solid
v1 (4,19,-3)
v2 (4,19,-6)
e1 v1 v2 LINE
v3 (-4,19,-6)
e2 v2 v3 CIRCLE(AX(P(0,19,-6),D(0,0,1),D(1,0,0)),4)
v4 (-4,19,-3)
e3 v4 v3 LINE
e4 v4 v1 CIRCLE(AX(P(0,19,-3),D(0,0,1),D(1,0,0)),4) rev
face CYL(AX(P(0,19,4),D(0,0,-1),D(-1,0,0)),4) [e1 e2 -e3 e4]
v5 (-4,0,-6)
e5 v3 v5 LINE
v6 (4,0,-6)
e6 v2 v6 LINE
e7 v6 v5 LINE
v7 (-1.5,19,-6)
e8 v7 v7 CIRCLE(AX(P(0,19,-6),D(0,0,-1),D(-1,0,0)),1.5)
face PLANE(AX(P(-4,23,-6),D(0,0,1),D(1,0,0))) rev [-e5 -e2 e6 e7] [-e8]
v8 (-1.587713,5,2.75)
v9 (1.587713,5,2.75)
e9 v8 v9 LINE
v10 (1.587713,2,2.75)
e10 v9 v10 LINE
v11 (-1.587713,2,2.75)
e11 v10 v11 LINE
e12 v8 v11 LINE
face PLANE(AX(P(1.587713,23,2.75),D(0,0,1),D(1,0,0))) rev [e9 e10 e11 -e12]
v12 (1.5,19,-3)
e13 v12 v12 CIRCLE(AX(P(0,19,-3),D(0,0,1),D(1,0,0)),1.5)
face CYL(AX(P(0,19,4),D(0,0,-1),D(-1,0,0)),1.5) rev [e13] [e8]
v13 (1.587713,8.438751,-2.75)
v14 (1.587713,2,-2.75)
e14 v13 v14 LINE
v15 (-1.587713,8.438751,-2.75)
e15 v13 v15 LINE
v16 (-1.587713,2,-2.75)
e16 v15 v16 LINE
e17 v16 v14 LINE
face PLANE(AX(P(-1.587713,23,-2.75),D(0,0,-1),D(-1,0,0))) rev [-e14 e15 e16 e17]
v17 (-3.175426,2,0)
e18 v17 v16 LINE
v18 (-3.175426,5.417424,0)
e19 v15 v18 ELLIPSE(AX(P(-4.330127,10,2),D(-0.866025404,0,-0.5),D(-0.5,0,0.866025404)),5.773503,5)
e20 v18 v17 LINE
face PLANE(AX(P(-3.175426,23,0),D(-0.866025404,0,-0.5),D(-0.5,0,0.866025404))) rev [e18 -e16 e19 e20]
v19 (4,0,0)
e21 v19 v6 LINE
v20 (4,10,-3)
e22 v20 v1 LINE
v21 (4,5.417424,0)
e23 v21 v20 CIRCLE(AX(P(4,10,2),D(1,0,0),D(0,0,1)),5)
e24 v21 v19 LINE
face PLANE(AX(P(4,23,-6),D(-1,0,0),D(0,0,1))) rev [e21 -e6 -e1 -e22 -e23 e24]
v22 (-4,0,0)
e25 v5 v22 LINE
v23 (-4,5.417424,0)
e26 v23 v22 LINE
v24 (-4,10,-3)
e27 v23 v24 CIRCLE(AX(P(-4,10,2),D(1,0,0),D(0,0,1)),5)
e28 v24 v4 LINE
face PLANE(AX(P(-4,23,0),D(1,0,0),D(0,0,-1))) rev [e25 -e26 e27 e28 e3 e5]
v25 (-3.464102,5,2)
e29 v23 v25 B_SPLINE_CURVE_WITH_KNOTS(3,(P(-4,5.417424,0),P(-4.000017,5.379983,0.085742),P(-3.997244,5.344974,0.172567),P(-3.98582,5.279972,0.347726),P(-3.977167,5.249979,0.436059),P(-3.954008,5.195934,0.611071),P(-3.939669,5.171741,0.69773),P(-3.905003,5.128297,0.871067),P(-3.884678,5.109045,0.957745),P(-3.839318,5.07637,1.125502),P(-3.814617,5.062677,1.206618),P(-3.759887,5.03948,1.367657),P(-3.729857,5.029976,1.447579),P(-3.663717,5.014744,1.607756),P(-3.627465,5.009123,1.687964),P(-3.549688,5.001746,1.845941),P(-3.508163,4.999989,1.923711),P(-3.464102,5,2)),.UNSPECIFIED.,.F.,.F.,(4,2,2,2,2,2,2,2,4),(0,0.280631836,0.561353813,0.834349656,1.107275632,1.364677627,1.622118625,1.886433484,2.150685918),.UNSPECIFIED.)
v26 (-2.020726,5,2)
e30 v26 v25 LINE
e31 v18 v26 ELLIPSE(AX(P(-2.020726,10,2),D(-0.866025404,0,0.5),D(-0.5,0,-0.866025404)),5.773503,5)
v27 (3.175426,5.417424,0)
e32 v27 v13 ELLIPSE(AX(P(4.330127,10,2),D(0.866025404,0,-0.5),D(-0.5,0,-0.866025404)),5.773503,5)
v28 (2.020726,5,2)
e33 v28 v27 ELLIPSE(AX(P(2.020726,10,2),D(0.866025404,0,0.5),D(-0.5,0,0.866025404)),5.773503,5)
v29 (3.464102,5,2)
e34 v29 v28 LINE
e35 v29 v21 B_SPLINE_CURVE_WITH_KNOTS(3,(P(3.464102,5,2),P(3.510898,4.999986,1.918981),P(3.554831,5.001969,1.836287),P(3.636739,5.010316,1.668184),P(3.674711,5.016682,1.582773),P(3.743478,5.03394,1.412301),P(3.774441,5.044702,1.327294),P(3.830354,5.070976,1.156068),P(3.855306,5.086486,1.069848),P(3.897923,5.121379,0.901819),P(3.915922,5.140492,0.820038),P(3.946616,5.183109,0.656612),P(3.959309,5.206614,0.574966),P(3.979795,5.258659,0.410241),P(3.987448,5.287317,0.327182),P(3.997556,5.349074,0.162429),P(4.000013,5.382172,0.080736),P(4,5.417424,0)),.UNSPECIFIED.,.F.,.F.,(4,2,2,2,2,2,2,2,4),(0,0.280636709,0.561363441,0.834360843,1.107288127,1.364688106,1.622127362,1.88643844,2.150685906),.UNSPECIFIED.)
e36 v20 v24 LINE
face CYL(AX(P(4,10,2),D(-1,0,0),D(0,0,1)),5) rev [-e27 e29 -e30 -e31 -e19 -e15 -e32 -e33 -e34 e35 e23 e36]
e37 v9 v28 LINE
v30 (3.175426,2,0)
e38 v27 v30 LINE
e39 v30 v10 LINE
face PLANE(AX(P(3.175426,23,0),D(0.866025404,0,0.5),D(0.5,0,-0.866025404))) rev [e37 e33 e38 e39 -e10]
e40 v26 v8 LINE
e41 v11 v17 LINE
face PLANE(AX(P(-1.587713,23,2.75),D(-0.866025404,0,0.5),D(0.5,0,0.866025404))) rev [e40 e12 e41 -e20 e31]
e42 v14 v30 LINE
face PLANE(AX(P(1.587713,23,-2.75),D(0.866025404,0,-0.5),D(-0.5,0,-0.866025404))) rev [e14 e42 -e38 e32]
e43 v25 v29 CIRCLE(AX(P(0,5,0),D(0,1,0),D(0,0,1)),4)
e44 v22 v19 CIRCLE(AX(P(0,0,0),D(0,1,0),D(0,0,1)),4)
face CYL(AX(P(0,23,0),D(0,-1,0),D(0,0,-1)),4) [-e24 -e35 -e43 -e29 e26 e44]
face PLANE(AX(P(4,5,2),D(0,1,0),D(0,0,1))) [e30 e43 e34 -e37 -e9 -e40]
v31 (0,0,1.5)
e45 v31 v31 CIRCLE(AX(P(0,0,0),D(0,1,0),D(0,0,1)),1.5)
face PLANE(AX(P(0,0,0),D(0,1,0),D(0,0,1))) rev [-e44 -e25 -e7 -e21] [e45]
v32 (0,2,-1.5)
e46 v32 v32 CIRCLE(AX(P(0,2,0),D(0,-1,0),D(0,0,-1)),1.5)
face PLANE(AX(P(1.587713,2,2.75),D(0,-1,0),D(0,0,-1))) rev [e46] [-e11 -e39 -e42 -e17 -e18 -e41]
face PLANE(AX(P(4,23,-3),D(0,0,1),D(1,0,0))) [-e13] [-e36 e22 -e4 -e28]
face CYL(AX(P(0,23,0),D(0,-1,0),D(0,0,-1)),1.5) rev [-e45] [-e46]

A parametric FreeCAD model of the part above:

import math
import FreeCAD as App
import Part
import Sketcher

V = App.Vector
Q = App.Units.Quantity


def add_polygon(sketch, points):
    """Adds a closed chain of lines whose ends are joined by coincident constraints."""
    first, n = sketch.GeometryCount, len(points)
    for a, b in zip(points, points[1:] + points[:1]):
        sketch.addGeometry(Part.LineSegment(App.Vector(*a, 0), App.Vector(*b, 0)), False)
    for i in range(n):
        sketch.addConstraint(Sketcher.Constraint("Coincident", first + i, 2, first + (i + 1) % n, 1))

doc = App.newDocument("Part")
body = doc.addObject("PartDesign::Body", "Body")

sketch1 = body.newObject("Sketcher::SketchObject", "Sketch")
sketch1.AttachmentSupport = (doc.getObject("XZ_Plane"), [""])
sketch1.MapMode = "FlatFace"
sketch1.addGeometry([
    Part.LineSegment(V(-4, -6, 0), V(-4, 0, 0)),
    Part.ArcOfCircle(Part.Circle(V(0, 0, 0), V(0, 0, 1), 4), math.radians(0), math.radians(180)),
    Part.LineSegment(V(4, 0, 0), V(4, -6, 0)),
    Part.LineSegment(V(4, -6, 0), V(-4, -6, 0)),
    Part.Circle(V(0, 0, 0), V(0, 0, 1), 1.5),
], False)
sketch1.addConstraint([
    Sketcher.Constraint("Tangent", 0, 2, 1, 2),
    Sketcher.Constraint("Tangent", 1, 1, 2, 1),
    Sketcher.Constraint("Coincident", 2, 2, 3, 1),
    Sketcher.Constraint("Coincident", 3, 2, 0, 1),
    Sketcher.Constraint("Vertical", 0),
    Sketcher.Constraint("Vertical", 2),
    Sketcher.Constraint("Horizontal", 3),
    Sketcher.Constraint("Coincident", 1, 3, -1, 1),
    Sketcher.Constraint("Coincident", 4, 3, -1, 1),
    Sketcher.Constraint("Diameter", 4, 3.0),
    Sketcher.Constraint("Radius", 1, 4.0),
    Sketcher.Constraint("DistanceY", 0, 1, 0, 2, 6.0),
])
pad1 = body.newObject("PartDesign::Pad", "Pad")
pad1.Profile = sketch1
pad1.Length = 23
pad1.Reversed = True

sketch2 = body.newObject("Sketcher::SketchObject", "Sketch001")
sketch2.AttachmentSupport = (doc.getObject("YZ_Plane"), [""])
sketch2.MapMode = "FlatFace"
sketch2.AttachmentOffset = App.Placement(V(0, 0, -4), App.Rotation())
add_polygon(sketch2, [(26.6, -9.6), (-3.6, -9.6), (-3.6, 7.6), (26.6, 7.6)])
sketch2.addGeometry(Part.LineSegment(V(23, -6, 0), V(23, -3, 0)), False)
sketch2.addGeometry(Part.LineSegment(V(23, -3, 0), V(10, -3, 0)), False)
sketch2.addGeometry(Part.ArcOfCircle(Part.Circle(V(10, 2, 0), V(0, 0, 1), 5), math.radians(180), math.radians(270)), False)
sketch2.addGeometry(Part.LineSegment(V(5, 2, 0), V(5, 4, 0)), False)
sketch2.addGeometry(Part.LineSegment(V(5, 4, 0), V(0, 4, 0)), False)
sketch2.addGeometry(Part.LineSegment(V(0, 4, 0), V(0, -6, 0)), False)
sketch2.addGeometry(Part.LineSegment(V(0, -6, 0), V(23, -6, 0)), False)
sketch2.addConstraint([
    Sketcher.Constraint("Coincident", 4, 2, 5, 1),
    Sketcher.Constraint("Tangent", 5, 2, 6, 2),
    Sketcher.Constraint("Tangent", 6, 1, 7, 1),
    Sketcher.Constraint("Coincident", 7, 2, 8, 1),
    Sketcher.Constraint("Coincident", 8, 2, 9, 1),
    Sketcher.Constraint("Coincident", 9, 2, 10, 1),
    Sketcher.Constraint("Coincident", 10, 2, 4, 1),
    Sketcher.Constraint("Horizontal", 0),
    Sketcher.Constraint("Vertical", 1),
    Sketcher.Constraint("Horizontal", 2),
    Sketcher.Constraint("Vertical", 3),
    Sketcher.Constraint("Vertical", 4),
    Sketcher.Constraint("Horizontal", 5),
    Sketcher.Constraint("Vertical", 7),
    Sketcher.Constraint("Horizontal", 8),
    Sketcher.Constraint("Vertical", 9),
    Sketcher.Constraint("Horizontal", 10),
    Sketcher.Constraint("PointOnObject", 8, 2, -2),
    Sketcher.Constraint("Radius", 6, 5.0),
    Sketcher.Constraint("DistanceX", 5, 2, 5, 1, 13.0),
    Sketcher.Constraint("DistanceX", 8, 2, 8, 1, 5.0),
    Sketcher.Constraint("DistanceY", 4, 1, 4, 2, 3.0),
    Sketcher.Constraint("DistanceY", 7, 1, 7, 2, 2.0),
    Sketcher.Constraint("DistanceY", -1, 1, 6, 3, 2.0),
    Sketcher.Constraint("DistanceX", 0, 2, 0, 1, 30.264),
    Sketcher.Constraint("DistanceY", 1, 1, 1, 2, 17.264),
    Sketcher.Constraint("DistanceX", 0, 2, -1, 1, 3.632),
    Sketcher.Constraint("DistanceY", 0, 2, -1, 1, 9.632),
])
pocket1 = body.newObject("PartDesign::Pocket", "Pocket")
pocket1.Profile = sketch2
pocket1.Type = "ThroughAll"
pocket1.Reversed = True

sketch3 = body.newObject("Sketcher::SketchObject", "Sketch002")
sketch3.AttachmentSupport = (doc.getObject("XY_Plane"), [""])
sketch3.MapMode = "FlatFace"
sketch3.AttachmentOffset = App.Placement(V(0, 0, -6), App.Rotation())
sketch3.addGeometry([
    Part.Circle(V(0, 19, 0), V(0, 0, 1), 1.5),
    Part.LineSegment(V(7.6, 24.9, 0), V(4, 19, 0)),
    Part.ArcOfCircle(Part.Circle(V(0, 19, 0), V(0, 0, 1), 4), math.radians(0), math.radians(180)),
    Part.LineSegment(V(-4, 19, 0), V(-9.8, 24, 0)),
    Part.LineSegment(V(-9.8, 24, 0), V(7.6, 24.9, 0)),
], False)
sketch3.addConstraint([
    Sketcher.Constraint("Coincident", 1, 2, 2, 1),
    Sketcher.Constraint("Coincident", 2, 2, 3, 1),
    Sketcher.Constraint("Coincident", 3, 2, 4, 1),
    Sketcher.Constraint("Coincident", 4, 2, 1, 1),
    Sketcher.Constraint("Coincident", 2, 3, 0, 3),
    Sketcher.Constraint("Symmetric", 1, 2, 2, 2, -2),
    Sketcher.Constraint("Horizontal", 2, 3, 1, 2),
    Sketcher.Constraint("Diameter", 0, 3.0),
    Sketcher.Constraint("Radius", 2, 4.0),
    Sketcher.Constraint("DistanceY", -1, 1, 0, 3, 19.0),
    Sketcher.Constraint("DistanceX", 3, 2, -1, 1, 9.845339),
    Sketcher.Constraint("DistanceY", -1, 1, 3, 2, 23.958039),
    Sketcher.Constraint("Distance", 1, 6.891205),
    Sketcher.Constraint("Distance", 4, 17.471592),
])
pocket2 = body.newObject("PartDesign::Pocket", "Pocket001")
pocket2.Profile = sketch3
pocket2.Type = "ThroughAll"
pocket2.Reversed = True

sketch4 = body.newObject("Sketcher::SketchObject", "Sketch003")
sketch4.AttachmentSupport = (doc.getObject("XZ_Plane"), [""])
sketch4.MapMode = "FlatFace"
sketch4.AttachmentOffset = App.Placement(V(0, 0, -2), App.Rotation())
add_polygon(sketch4, [(1.6, 2.8), (-1.6, 2.8), (-3.2, 0), (-1.6, -2.8), (1.6, -2.8), (3.2, 0)])
sketch4.addConstraint([
    Sketcher.Constraint("Horizontal", 0),
    Sketcher.Constraint("Horizontal", 3),
    Sketcher.Constraint("Symmetric", 0, 2, 3, 2, -1, 1),
    Sketcher.Constraint("Symmetric", 1, 2, 4, 2, -1, 1),
    Sketcher.Constraint("PointOnObject", 1, 2, -1),
    Sketcher.Constraint("Parallel", 2, 5),
    Sketcher.Constraint("Vertical", 0, 2, 2, 2),
    Sketcher.Constraint("Angle", 1, Q("-120 deg")),
    Sketcher.Constraint("DistanceY", 2, 2, 0, 2, 5.5),
    Sketcher.Constraint("DistanceX", 0, 2, 0, 1, 3.175426),
])
pocket3 = body.newObject("PartDesign::Pocket", "Pocket002")
pocket3.Profile = sketch4
pocket3.Type = "ThroughAll"

doc.recompute()
